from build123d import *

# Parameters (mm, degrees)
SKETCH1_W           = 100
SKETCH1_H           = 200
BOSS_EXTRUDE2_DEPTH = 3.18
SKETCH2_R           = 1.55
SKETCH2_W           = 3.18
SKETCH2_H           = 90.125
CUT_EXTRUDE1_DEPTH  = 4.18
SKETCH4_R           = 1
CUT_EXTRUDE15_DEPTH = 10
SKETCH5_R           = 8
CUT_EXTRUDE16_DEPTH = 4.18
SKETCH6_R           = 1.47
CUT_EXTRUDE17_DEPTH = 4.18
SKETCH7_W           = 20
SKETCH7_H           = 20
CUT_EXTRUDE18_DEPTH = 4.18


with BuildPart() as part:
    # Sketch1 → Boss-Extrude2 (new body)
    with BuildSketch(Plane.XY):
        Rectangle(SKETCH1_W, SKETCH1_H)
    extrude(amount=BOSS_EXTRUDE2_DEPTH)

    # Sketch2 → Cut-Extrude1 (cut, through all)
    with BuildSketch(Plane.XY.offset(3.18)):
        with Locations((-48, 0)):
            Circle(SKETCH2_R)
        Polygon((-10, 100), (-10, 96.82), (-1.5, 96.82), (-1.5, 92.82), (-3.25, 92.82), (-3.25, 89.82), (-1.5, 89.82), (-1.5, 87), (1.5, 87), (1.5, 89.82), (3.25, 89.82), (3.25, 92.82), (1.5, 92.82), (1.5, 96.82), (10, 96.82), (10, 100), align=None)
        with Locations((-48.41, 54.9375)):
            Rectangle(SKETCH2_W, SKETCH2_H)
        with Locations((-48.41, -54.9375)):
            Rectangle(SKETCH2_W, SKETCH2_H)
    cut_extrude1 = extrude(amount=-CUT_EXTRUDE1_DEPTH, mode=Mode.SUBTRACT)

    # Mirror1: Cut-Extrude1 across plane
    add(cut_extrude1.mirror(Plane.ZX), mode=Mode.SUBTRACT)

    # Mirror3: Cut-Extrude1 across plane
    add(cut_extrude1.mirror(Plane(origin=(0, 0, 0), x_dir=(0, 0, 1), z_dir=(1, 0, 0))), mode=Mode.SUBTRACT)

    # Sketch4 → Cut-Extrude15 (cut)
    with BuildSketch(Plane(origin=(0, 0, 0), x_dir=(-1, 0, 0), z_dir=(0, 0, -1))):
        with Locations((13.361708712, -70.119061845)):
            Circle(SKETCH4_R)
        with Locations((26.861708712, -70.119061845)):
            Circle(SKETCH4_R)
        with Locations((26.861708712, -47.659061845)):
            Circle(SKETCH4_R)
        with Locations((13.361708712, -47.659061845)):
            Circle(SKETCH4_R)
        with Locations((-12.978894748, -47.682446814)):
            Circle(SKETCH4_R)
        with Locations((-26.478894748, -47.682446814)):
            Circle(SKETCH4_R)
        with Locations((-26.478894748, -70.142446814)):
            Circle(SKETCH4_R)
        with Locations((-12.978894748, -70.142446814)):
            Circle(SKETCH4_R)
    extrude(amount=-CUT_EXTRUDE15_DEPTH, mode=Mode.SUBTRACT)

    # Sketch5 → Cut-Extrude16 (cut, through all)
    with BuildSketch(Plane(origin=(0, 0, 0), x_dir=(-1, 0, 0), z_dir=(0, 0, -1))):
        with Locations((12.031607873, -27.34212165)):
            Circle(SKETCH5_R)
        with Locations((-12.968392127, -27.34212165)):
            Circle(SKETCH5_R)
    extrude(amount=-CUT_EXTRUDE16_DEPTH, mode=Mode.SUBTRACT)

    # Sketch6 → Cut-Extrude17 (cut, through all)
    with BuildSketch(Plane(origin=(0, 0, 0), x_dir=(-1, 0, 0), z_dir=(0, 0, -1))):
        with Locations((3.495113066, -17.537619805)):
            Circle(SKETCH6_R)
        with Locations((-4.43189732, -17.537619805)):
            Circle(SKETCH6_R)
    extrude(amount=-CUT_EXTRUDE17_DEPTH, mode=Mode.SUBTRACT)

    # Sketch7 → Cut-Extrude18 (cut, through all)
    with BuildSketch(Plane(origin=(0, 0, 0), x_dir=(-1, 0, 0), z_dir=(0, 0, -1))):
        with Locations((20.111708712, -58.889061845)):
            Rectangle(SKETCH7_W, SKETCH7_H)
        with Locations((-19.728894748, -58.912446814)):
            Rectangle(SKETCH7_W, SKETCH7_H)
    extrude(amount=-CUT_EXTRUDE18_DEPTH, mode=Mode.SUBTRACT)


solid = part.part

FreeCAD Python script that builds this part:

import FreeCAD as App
import Part
import Sketcher
from FreeCAD import Vector


def add_polygon(sketch, points):
    """Adds a closed chain of lines whose ends are joined by coincident constraints."""
    first, n = sketch.GeometryCount, len(points)
    for a, b in zip(points, points[1:] + points[:1]):
        sketch.addGeometry(Part.LineSegment(App.Vector(*a, 0), App.Vector(*b, 0)), False)
    for i in range(n):
        sketch.addConstraint(Sketcher.Constraint("Coincident", first + i, 2, first + (i + 1) % n, 1))

doc = App.newDocument("Part")
body = doc.addObject("PartDesign::Body", "Body")

sketch1 = body.newObject("Sketcher::SketchObject", "Sketch")
sketch1.AttachmentSupport = (doc.getObject("XY_Plane"), [""])
sketch1.MapMode = "FlatFace"
add_polygon(sketch1, [(-50, 100), (-50, -100), (50, -100), (50, 100)])
sketch1.addConstraint(Sketcher.Constraint("Vertical", 0))
sketch1.addConstraint(Sketcher.Constraint("Horizontal", 1))
sketch1.addConstraint(Sketcher.Constraint("Vertical", 2))
sketch1.addConstraint(Sketcher.Constraint("Horizontal", 3))
sketch1.addConstraint(Sketcher.Constraint("Symmetric", 0, 2, 2, 2, -1, 1))
sketch1.addConstraint(Sketcher.Constraint("DistanceX", 1, 1, 1, 2, 100.0))
sketch1.addConstraint(Sketcher.Constraint("DistanceY", 0, 2, 0, 1, 200.0))
pad1 = body.newObject("PartDesign::Pad", "Pad")
pad1.Profile = sketch1
pad1.Length = 3.18

sketch2 = body.newObject("Sketcher::SketchObject", "Sketch001")
sketch2.AttachmentSupport = (doc.getObject("XY_Plane"), [""])
sketch2.MapMode = "FlatFace"
sketch2.AttachmentOffset = App.Placement(Vector(0, 0, 3.18), App.Rotation())
sketch2.addGeometry(Part.Circle(Vector(-48, 0, 0), Vector(0, 0, 1), 1.55), False)
add_polygon(sketch2, [(-10, 100), (-10, 96.82), (-1.5, 96.82), (-1.5, 92.82), (-3.25, 92.82), (-3.25, 89.82), (-1.5, 89.82), (-1.5, 87), (1.5, 87), (1.5, 89.82), (3.25, 89.82), (3.25, 92.82), (1.5, 92.82), (1.5, 96.82), (10, 96.82), (10, 100)])
add_polygon(sketch2, [(-50, 100), (-50, 9.875), (-46.82, 9.875), (-46.82, 100)])
add_polygon(sketch2, [(-50, -9.875), (-50, -100), (-46.82, -100), (-46.82, -9.875)])
sketch2.addConstraint(Sketcher.Constraint("Vertical", 1))
sketch2.addConstraint(Sketcher.Constraint("Horizontal", 2))
sketch2.addConstraint(Sketcher.Constraint("Vertical", 3))
sketch2.addConstraint(Sketcher.Constraint("Horizontal", 4))
sketch2.addConstraint(Sketcher.Constraint("Vertical", 5))
sketch2.addConstraint(Sketcher.Constraint("Horizontal", 6))
sketch2.addConstraint(Sketcher.Constraint("Vertical", 7))
sketch2.addConstraint(Sketcher.Constraint("Horizontal", 8))
sketch2.addConstraint(Sketcher.Constraint("Vertical", 9))
sketch2.addConstraint(Sketcher.Constraint("Horizontal", 10))
sketch2.addConstraint(Sketcher.Constraint("Vertical", 11))
sketch2.addConstraint(Sketcher.Constraint("Horizontal", 12))
sketch2.addConstraint(Sketcher.Constraint("Vertical", 13))
sketch2.addConstraint(Sketcher.Constraint("Horizontal", 14))
sketch2.addConstraint(Sketcher.Constraint("Vertical", 15))
sketch2.addConstraint(Sketcher.Constraint("Horizontal", 16))
sketch2.addConstraint(Sketcher.Constraint("Vertical", 17))
sketch2.addConstraint(Sketcher.Constraint("Horizontal", 18))
sketch2.addConstraint(Sketcher.Constraint("Vertical", 19))
sketch2.addConstraint(Sketcher.Constraint("Horizontal", 20))
sketch2.addConstraint(Sketcher.Constraint("Vertical", 21))
sketch2.addConstraint(Sketcher.Constraint("Horizontal", 22))
sketch2.addConstraint(Sketcher.Constraint("Vertical", 23))
sketch2.addConstraint(Sketcher.Constraint("Horizontal", 24))
sketch2.addConstraint(Sketcher.Constraint("Symmetric", 6, 2, 9, 2, -2))
sketch2.addConstraint(Sketcher.Constraint("Symmetric", 4, 2, 11, 2, -2))
sketch2.addConstraint(Sketcher.Constraint("Symmetric", 2, 2, 13, 2, -2))
sketch2.addConstraint(Sketcher.Constraint("Symmetric", 20, 2, 21, 2, -1))
sketch2.addConstraint(Sketcher.Constraint("Symmetric", 18, 2, 23, 2, -1))
sketch2.addConstraint(Sketcher.Constraint("PointOnObject", 0, 3, -1))
sketch2.addConstraint(Sketcher.Constraint("Horizontal", 16, 2, 19, 2))
sketch2.addConstraint(Sketcher.Constraint("Vertical", 3, 2, 6, 2))
sketch2.addConstraint(Sketcher.Constraint("Equal", 2, 14))
sketch2.addConstraint(Sketcher.Constraint("Equal", 24, 1))
sketch2.addConstraint(Sketcher.Constraint("Equal", 8, 5))
sketch2.addConstraint(Sketcher.Constraint("Diameter", 0, 3.1))
sketch2.addConstraint(Sketcher.Constraint("DistanceX", 8, 1, 8, 2, 3.0))
sketch2.addConstraint(Sketcher.Constraint("DistanceX", 16, 2, 16, 1, 20.0))
sketch2.addConstraint(Sketcher.Constraint("DistanceY", 3, 2, 3, 1, 4.0))
sketch2.addConstraint(Sketcher.Constraint("DistanceX", 0, 3, -1, 1, 48.0))
sketch2.addConstraint(Sketcher.Constraint("DistanceY", -1, 1, 7, 2, 87.0))
sketch2.addConstraint(Sketcher.Constraint("DistanceY", -1, 1, 15, 2, 100.0))
sketch2.addConstraint(Sketcher.Constraint("DistanceX", 17, 2, -1, 1, 50.0))
sketch2.addConstraint(Sketcher.Constraint("DistanceX", 4, 2, 4, 1, 1.75))
sketch2.addConstraint(Sketcher.Constraint("DistanceX", 18, 1, 18, 2, 3.18))
sketch2.addConstraint(Sketcher.Constraint("DistanceY", 17, 2, 17, 1, 90.125))
pocket1 = body.newObject("PartDesign::Pocket", "Pocket")
pocket1.Profile = sketch2
pocket1.Type = "ThroughAll"
doc.recompute()

mirrored = body.newObject("PartDesign::Mirrored", "Mirrored")
mirrored.Originals = [pocket1]
mirrored.MirrorPlane = (doc.getObject("XZ_Plane"), [""])
body.Tip = mirrored
doc.recompute()

mirrored2 = body.newObject("PartDesign::Mirrored", "Mirrored001")
mirrored2.Originals = [pocket1]
mirrored2.MirrorPlane = (doc.getObject("YZ_Plane"), [""])
body.Tip = mirrored2

sketch3 = body.newObject("Sketcher::SketchObject", "Sketch002")
sketch3.AttachmentSupport = (doc.getObject("XY_Plane"), [""])
sketch3.MapMode = "FlatFace"
sketch3.addGeometry(Part.Circle(Vector(-13.361709, -70.119062, 0), Vector(0, 0, 1), 1), False)
sketch3.addGeometry(Part.Circle(Vector(-26.861709, -70.119062, 0), Vector(0, 0, 1), 1), False)
sketch3.addGeometry(Part.Circle(Vector(-26.861709, -47.659062, 0), Vector(0, 0, 1), 1), False)
sketch3.addGeometry(Part.Circle(Vector(-13.361709, -47.659062, 0), Vector(0, 0, 1), 1), False)
sketch3.addGeometry(Part.Circle(Vector(12.978895, -47.682447, 0), Vector(0, 0, 1), 1), False)
sketch3.addGeometry(Part.Circle(Vector(26.478895, -47.682447, 0), Vector(0, 0, 1), 1), False)
sketch3.addGeometry(Part.Circle(Vector(26.478895, -70.142447, 0), Vector(0, 0, 1), 1), False)
sketch3.addGeometry(Part.Circle(Vector(12.978895, -70.142447, 0), Vector(0, 0, 1), 1), False)
sketch3.addConstraint(Sketcher.Constraint("Equal", 0, 1))
sketch3.addConstraint(Sketcher.Constraint("Equal", 1, 2))
sketch3.addConstraint(Sketcher.Constraint("Equal", 2, 3))
sketch3.addConstraint(Sketcher.Constraint("Equal", 3, 4))
sketch3.addConstraint(Sketcher.Constraint("Equal", 4, 5))
sketch3.addConstraint(Sketcher.Constraint("Equal", 5, 6))
sketch3.addConstraint(Sketcher.Constraint("Equal", 6, 7))
sketch3.addConstraint(Sketcher.Constraint("Horizontal", 0, 3, 1, 3))
sketch3.addConstraint(Sketcher.Constraint("Horizontal", 2, 3, 3, 3))
sketch3.addConstraint(Sketcher.Constraint("Horizontal", 4, 3, 5, 3))
sketch3.addConstraint(Sketcher.Constraint("Horizontal", 6, 3, 7, 3))
sketch3.addConstraint(Sketcher.Constraint("Vertical", 1, 3, 2, 3))
sketch3.addConstraint(Sketcher.Constraint("Vertical", 0, 3, 3, 3))
sketch3.addConstraint(Sketcher.Constraint("Vertical", 5, 3, 6, 3))
sketch3.addConstraint(Sketcher.Constraint("Vertical", 4, 3, 7, 3))
sketch3.addConstraint(Sketcher.Constraint("Diameter", 0, 2.0))
sketch3.addConstraint(Sketcher.Constraint("DistanceX", 1, 3, 0, 3, 13.5))
sketch3.addConstraint(Sketcher.Constraint("DistanceX", 4, 3, 5, 3, 13.5))
sketch3.addConstraint(Sketcher.Constraint("DistanceY", 1, 3, 2, 3, 22.46))
sketch3.addConstraint(Sketcher.Constraint("DistanceY", 6, 3, 5, 3, 22.46))
sketch3.addConstraint(Sketcher.Constraint("DistanceX", 0, 3, -1, 1, 13.361709))
sketch3.addConstraint(Sketcher.Constraint("DistanceY", 0, 3, -1, 1, 70.119062))
sketch3.addConstraint(Sketcher.Constraint("DistanceX", -1, 1, 4, 3, 12.978895))
sketch3.addConstraint(Sketcher.Constraint("DistanceY", 4, 3, -1, 1, 47.682447))
pocket2 = body.newObject("PartDesign::Pocket", "Pocket001")
pocket2.Profile = sketch3
pocket2.Length = 10
pocket2.Reversed = True

sketch4 = body.newObject("Sketcher::SketchObject", "Sketch003")
sketch4.AttachmentSupport = (doc.getObject("XY_Plane"), [""])
sketch4.MapMode = "FlatFace"
sketch4.addGeometry(Part.Circle(Vector(-12.031608, -27.342122, 0), Vector(0, 0, 1), 8), False)
sketch4.addGeometry(Part.Circle(Vector(12.968392, -27.342122, 0), Vector(0, 0, 1), 8), False)
sketch4.addConstraint(Sketcher.Constraint("Equal", 0, 1))
sketch4.addConstraint(Sketcher.Constraint("Horizontal", 0, 3, 1, 3))
sketch4.addConstraint(Sketcher.Constraint("Diameter", 0, 16.0))
sketch4.addConstraint(Sketcher.Constraint("DistanceX", 0, 3, 1, 3, 25.0))
sketch4.addConstraint(Sketcher.Constraint("DistanceY", 0, 3, -1, 1, 27.342122))
sketch4.addConstraint(Sketcher.Constraint("DistanceX", 0, 3, -1, 1, 12.031608))
pocket3 = body.newObject("PartDesign::Pocket", "Pocket002")
pocket3.Profile = sketch4
pocket3.Type = "ThroughAll"
pocket3.Reversed = True

sketch5 = body.newObject("Sketcher::SketchObject", "Sketch004")
sketch5.AttachmentSupport = (doc.getObject("XY_Plane"), [""])
sketch5.MapMode = "FlatFace"
sketch5.addGeometry(Part.Circle(Vector(-3.495113, -17.53762, 0), Vector(0, 0, 1), 1.47), False)
sketch5.addGeometry(Part.Circle(Vector(4.431897, -17.53762, 0), Vector(0, 0, 1), 1.47), False)
sketch5.addConstraint(Sketcher.Constraint("Equal", 0, 1))
sketch5.addConstraint(Sketcher.Constraint("Horizontal", 0, 3, 1, 3))
sketch5.addConstraint(Sketcher.Constraint("Diameter", 0, 2.94))
sketch5.addConstraint(Sketcher.Constraint("DistanceY", 0, 3, -1, 1, 17.53762))
sketch5.addConstraint(Sketcher.Constraint("DistanceX", 0, 3, 1, 3, 7.92701))
sketch5.addConstraint(Sketcher.Constraint("DistanceX", 0, 3, -1, 1, 3.495113))
pocket4 = body.newObject("PartDesign::Pocket", "Pocket003")
pocket4.Profile = sketch5
pocket4.Type = "ThroughAll"
pocket4.Reversed = True

sketch6 = body.newObject("Sketcher::SketchObject", "Sketch005")
sketch6.AttachmentSupport = (doc.getObject("XY_Plane"), [""])
sketch6.MapMode = "FlatFace"
add_polygon(sketch6, [(-10.111709, -48.889062), (-10.111709, -68.889062), (-30.111709, -68.889062), (-30.111709, -48.889062)])
add_polygon(sketch6, [(29.728895, -48.912447), (29.728895, -68.912447), (9.728895, -68.912447), (9.728895, -48.912447)])
sketch6.addConstraint(Sketcher.Constraint("Vertical", 0))
sketch6.addConstraint(Sketcher.Constraint("Horizontal", 1))
sketch6.addConstraint(Sketcher.Constraint("Vertical", 2))
sketch6.addConstraint(Sketcher.Constraint("Horizontal", 3))
sketch6.addConstraint(Sketcher.Constraint("Vertical", 4))
sketch6.addConstraint(Sketcher.Constraint("Horizontal", 5))
sketch6.addConstraint(Sketcher.Constraint("Vertical", 6))
sketch6.addConstraint(Sketcher.Constraint("Horizontal", 7))
sketch6.addConstraint(Sketcher.Constraint("Equal", 3, 5))
sketch6.addConstraint(Sketcher.Constraint("Equal", 7, 0))
sketch6.addConstraint(Sketcher.Constraint("Equal", 2, 4))
sketch6.addConstraint(Sketcher.Constraint("DistanceX", 1, 2, 1, 1, 20.0))
sketch6.addConstraint(Sketcher.Constraint("DistanceX", 0, 2, -1, 1, 10.111709))
sketch6.addConstraint(Sketcher.Constraint("DistanceY", 0, 2, -1, 1, 68.889062))
sketch6.addConstraint(Sketcher.Constraint("DistanceX", -1, 1, 4, 2, 29.728895))
sketch6.addConstraint(Sketcher.Constraint("DistanceY", 4, 2, -1, 1, 68.912447))
pocket5 = body.newObject("PartDesign::Pocket", "Pocket004")
pocket5.Profile = sketch6
pocket5.Type = "ThroughAll"
pocket5.Reversed = True

doc.recompute()
